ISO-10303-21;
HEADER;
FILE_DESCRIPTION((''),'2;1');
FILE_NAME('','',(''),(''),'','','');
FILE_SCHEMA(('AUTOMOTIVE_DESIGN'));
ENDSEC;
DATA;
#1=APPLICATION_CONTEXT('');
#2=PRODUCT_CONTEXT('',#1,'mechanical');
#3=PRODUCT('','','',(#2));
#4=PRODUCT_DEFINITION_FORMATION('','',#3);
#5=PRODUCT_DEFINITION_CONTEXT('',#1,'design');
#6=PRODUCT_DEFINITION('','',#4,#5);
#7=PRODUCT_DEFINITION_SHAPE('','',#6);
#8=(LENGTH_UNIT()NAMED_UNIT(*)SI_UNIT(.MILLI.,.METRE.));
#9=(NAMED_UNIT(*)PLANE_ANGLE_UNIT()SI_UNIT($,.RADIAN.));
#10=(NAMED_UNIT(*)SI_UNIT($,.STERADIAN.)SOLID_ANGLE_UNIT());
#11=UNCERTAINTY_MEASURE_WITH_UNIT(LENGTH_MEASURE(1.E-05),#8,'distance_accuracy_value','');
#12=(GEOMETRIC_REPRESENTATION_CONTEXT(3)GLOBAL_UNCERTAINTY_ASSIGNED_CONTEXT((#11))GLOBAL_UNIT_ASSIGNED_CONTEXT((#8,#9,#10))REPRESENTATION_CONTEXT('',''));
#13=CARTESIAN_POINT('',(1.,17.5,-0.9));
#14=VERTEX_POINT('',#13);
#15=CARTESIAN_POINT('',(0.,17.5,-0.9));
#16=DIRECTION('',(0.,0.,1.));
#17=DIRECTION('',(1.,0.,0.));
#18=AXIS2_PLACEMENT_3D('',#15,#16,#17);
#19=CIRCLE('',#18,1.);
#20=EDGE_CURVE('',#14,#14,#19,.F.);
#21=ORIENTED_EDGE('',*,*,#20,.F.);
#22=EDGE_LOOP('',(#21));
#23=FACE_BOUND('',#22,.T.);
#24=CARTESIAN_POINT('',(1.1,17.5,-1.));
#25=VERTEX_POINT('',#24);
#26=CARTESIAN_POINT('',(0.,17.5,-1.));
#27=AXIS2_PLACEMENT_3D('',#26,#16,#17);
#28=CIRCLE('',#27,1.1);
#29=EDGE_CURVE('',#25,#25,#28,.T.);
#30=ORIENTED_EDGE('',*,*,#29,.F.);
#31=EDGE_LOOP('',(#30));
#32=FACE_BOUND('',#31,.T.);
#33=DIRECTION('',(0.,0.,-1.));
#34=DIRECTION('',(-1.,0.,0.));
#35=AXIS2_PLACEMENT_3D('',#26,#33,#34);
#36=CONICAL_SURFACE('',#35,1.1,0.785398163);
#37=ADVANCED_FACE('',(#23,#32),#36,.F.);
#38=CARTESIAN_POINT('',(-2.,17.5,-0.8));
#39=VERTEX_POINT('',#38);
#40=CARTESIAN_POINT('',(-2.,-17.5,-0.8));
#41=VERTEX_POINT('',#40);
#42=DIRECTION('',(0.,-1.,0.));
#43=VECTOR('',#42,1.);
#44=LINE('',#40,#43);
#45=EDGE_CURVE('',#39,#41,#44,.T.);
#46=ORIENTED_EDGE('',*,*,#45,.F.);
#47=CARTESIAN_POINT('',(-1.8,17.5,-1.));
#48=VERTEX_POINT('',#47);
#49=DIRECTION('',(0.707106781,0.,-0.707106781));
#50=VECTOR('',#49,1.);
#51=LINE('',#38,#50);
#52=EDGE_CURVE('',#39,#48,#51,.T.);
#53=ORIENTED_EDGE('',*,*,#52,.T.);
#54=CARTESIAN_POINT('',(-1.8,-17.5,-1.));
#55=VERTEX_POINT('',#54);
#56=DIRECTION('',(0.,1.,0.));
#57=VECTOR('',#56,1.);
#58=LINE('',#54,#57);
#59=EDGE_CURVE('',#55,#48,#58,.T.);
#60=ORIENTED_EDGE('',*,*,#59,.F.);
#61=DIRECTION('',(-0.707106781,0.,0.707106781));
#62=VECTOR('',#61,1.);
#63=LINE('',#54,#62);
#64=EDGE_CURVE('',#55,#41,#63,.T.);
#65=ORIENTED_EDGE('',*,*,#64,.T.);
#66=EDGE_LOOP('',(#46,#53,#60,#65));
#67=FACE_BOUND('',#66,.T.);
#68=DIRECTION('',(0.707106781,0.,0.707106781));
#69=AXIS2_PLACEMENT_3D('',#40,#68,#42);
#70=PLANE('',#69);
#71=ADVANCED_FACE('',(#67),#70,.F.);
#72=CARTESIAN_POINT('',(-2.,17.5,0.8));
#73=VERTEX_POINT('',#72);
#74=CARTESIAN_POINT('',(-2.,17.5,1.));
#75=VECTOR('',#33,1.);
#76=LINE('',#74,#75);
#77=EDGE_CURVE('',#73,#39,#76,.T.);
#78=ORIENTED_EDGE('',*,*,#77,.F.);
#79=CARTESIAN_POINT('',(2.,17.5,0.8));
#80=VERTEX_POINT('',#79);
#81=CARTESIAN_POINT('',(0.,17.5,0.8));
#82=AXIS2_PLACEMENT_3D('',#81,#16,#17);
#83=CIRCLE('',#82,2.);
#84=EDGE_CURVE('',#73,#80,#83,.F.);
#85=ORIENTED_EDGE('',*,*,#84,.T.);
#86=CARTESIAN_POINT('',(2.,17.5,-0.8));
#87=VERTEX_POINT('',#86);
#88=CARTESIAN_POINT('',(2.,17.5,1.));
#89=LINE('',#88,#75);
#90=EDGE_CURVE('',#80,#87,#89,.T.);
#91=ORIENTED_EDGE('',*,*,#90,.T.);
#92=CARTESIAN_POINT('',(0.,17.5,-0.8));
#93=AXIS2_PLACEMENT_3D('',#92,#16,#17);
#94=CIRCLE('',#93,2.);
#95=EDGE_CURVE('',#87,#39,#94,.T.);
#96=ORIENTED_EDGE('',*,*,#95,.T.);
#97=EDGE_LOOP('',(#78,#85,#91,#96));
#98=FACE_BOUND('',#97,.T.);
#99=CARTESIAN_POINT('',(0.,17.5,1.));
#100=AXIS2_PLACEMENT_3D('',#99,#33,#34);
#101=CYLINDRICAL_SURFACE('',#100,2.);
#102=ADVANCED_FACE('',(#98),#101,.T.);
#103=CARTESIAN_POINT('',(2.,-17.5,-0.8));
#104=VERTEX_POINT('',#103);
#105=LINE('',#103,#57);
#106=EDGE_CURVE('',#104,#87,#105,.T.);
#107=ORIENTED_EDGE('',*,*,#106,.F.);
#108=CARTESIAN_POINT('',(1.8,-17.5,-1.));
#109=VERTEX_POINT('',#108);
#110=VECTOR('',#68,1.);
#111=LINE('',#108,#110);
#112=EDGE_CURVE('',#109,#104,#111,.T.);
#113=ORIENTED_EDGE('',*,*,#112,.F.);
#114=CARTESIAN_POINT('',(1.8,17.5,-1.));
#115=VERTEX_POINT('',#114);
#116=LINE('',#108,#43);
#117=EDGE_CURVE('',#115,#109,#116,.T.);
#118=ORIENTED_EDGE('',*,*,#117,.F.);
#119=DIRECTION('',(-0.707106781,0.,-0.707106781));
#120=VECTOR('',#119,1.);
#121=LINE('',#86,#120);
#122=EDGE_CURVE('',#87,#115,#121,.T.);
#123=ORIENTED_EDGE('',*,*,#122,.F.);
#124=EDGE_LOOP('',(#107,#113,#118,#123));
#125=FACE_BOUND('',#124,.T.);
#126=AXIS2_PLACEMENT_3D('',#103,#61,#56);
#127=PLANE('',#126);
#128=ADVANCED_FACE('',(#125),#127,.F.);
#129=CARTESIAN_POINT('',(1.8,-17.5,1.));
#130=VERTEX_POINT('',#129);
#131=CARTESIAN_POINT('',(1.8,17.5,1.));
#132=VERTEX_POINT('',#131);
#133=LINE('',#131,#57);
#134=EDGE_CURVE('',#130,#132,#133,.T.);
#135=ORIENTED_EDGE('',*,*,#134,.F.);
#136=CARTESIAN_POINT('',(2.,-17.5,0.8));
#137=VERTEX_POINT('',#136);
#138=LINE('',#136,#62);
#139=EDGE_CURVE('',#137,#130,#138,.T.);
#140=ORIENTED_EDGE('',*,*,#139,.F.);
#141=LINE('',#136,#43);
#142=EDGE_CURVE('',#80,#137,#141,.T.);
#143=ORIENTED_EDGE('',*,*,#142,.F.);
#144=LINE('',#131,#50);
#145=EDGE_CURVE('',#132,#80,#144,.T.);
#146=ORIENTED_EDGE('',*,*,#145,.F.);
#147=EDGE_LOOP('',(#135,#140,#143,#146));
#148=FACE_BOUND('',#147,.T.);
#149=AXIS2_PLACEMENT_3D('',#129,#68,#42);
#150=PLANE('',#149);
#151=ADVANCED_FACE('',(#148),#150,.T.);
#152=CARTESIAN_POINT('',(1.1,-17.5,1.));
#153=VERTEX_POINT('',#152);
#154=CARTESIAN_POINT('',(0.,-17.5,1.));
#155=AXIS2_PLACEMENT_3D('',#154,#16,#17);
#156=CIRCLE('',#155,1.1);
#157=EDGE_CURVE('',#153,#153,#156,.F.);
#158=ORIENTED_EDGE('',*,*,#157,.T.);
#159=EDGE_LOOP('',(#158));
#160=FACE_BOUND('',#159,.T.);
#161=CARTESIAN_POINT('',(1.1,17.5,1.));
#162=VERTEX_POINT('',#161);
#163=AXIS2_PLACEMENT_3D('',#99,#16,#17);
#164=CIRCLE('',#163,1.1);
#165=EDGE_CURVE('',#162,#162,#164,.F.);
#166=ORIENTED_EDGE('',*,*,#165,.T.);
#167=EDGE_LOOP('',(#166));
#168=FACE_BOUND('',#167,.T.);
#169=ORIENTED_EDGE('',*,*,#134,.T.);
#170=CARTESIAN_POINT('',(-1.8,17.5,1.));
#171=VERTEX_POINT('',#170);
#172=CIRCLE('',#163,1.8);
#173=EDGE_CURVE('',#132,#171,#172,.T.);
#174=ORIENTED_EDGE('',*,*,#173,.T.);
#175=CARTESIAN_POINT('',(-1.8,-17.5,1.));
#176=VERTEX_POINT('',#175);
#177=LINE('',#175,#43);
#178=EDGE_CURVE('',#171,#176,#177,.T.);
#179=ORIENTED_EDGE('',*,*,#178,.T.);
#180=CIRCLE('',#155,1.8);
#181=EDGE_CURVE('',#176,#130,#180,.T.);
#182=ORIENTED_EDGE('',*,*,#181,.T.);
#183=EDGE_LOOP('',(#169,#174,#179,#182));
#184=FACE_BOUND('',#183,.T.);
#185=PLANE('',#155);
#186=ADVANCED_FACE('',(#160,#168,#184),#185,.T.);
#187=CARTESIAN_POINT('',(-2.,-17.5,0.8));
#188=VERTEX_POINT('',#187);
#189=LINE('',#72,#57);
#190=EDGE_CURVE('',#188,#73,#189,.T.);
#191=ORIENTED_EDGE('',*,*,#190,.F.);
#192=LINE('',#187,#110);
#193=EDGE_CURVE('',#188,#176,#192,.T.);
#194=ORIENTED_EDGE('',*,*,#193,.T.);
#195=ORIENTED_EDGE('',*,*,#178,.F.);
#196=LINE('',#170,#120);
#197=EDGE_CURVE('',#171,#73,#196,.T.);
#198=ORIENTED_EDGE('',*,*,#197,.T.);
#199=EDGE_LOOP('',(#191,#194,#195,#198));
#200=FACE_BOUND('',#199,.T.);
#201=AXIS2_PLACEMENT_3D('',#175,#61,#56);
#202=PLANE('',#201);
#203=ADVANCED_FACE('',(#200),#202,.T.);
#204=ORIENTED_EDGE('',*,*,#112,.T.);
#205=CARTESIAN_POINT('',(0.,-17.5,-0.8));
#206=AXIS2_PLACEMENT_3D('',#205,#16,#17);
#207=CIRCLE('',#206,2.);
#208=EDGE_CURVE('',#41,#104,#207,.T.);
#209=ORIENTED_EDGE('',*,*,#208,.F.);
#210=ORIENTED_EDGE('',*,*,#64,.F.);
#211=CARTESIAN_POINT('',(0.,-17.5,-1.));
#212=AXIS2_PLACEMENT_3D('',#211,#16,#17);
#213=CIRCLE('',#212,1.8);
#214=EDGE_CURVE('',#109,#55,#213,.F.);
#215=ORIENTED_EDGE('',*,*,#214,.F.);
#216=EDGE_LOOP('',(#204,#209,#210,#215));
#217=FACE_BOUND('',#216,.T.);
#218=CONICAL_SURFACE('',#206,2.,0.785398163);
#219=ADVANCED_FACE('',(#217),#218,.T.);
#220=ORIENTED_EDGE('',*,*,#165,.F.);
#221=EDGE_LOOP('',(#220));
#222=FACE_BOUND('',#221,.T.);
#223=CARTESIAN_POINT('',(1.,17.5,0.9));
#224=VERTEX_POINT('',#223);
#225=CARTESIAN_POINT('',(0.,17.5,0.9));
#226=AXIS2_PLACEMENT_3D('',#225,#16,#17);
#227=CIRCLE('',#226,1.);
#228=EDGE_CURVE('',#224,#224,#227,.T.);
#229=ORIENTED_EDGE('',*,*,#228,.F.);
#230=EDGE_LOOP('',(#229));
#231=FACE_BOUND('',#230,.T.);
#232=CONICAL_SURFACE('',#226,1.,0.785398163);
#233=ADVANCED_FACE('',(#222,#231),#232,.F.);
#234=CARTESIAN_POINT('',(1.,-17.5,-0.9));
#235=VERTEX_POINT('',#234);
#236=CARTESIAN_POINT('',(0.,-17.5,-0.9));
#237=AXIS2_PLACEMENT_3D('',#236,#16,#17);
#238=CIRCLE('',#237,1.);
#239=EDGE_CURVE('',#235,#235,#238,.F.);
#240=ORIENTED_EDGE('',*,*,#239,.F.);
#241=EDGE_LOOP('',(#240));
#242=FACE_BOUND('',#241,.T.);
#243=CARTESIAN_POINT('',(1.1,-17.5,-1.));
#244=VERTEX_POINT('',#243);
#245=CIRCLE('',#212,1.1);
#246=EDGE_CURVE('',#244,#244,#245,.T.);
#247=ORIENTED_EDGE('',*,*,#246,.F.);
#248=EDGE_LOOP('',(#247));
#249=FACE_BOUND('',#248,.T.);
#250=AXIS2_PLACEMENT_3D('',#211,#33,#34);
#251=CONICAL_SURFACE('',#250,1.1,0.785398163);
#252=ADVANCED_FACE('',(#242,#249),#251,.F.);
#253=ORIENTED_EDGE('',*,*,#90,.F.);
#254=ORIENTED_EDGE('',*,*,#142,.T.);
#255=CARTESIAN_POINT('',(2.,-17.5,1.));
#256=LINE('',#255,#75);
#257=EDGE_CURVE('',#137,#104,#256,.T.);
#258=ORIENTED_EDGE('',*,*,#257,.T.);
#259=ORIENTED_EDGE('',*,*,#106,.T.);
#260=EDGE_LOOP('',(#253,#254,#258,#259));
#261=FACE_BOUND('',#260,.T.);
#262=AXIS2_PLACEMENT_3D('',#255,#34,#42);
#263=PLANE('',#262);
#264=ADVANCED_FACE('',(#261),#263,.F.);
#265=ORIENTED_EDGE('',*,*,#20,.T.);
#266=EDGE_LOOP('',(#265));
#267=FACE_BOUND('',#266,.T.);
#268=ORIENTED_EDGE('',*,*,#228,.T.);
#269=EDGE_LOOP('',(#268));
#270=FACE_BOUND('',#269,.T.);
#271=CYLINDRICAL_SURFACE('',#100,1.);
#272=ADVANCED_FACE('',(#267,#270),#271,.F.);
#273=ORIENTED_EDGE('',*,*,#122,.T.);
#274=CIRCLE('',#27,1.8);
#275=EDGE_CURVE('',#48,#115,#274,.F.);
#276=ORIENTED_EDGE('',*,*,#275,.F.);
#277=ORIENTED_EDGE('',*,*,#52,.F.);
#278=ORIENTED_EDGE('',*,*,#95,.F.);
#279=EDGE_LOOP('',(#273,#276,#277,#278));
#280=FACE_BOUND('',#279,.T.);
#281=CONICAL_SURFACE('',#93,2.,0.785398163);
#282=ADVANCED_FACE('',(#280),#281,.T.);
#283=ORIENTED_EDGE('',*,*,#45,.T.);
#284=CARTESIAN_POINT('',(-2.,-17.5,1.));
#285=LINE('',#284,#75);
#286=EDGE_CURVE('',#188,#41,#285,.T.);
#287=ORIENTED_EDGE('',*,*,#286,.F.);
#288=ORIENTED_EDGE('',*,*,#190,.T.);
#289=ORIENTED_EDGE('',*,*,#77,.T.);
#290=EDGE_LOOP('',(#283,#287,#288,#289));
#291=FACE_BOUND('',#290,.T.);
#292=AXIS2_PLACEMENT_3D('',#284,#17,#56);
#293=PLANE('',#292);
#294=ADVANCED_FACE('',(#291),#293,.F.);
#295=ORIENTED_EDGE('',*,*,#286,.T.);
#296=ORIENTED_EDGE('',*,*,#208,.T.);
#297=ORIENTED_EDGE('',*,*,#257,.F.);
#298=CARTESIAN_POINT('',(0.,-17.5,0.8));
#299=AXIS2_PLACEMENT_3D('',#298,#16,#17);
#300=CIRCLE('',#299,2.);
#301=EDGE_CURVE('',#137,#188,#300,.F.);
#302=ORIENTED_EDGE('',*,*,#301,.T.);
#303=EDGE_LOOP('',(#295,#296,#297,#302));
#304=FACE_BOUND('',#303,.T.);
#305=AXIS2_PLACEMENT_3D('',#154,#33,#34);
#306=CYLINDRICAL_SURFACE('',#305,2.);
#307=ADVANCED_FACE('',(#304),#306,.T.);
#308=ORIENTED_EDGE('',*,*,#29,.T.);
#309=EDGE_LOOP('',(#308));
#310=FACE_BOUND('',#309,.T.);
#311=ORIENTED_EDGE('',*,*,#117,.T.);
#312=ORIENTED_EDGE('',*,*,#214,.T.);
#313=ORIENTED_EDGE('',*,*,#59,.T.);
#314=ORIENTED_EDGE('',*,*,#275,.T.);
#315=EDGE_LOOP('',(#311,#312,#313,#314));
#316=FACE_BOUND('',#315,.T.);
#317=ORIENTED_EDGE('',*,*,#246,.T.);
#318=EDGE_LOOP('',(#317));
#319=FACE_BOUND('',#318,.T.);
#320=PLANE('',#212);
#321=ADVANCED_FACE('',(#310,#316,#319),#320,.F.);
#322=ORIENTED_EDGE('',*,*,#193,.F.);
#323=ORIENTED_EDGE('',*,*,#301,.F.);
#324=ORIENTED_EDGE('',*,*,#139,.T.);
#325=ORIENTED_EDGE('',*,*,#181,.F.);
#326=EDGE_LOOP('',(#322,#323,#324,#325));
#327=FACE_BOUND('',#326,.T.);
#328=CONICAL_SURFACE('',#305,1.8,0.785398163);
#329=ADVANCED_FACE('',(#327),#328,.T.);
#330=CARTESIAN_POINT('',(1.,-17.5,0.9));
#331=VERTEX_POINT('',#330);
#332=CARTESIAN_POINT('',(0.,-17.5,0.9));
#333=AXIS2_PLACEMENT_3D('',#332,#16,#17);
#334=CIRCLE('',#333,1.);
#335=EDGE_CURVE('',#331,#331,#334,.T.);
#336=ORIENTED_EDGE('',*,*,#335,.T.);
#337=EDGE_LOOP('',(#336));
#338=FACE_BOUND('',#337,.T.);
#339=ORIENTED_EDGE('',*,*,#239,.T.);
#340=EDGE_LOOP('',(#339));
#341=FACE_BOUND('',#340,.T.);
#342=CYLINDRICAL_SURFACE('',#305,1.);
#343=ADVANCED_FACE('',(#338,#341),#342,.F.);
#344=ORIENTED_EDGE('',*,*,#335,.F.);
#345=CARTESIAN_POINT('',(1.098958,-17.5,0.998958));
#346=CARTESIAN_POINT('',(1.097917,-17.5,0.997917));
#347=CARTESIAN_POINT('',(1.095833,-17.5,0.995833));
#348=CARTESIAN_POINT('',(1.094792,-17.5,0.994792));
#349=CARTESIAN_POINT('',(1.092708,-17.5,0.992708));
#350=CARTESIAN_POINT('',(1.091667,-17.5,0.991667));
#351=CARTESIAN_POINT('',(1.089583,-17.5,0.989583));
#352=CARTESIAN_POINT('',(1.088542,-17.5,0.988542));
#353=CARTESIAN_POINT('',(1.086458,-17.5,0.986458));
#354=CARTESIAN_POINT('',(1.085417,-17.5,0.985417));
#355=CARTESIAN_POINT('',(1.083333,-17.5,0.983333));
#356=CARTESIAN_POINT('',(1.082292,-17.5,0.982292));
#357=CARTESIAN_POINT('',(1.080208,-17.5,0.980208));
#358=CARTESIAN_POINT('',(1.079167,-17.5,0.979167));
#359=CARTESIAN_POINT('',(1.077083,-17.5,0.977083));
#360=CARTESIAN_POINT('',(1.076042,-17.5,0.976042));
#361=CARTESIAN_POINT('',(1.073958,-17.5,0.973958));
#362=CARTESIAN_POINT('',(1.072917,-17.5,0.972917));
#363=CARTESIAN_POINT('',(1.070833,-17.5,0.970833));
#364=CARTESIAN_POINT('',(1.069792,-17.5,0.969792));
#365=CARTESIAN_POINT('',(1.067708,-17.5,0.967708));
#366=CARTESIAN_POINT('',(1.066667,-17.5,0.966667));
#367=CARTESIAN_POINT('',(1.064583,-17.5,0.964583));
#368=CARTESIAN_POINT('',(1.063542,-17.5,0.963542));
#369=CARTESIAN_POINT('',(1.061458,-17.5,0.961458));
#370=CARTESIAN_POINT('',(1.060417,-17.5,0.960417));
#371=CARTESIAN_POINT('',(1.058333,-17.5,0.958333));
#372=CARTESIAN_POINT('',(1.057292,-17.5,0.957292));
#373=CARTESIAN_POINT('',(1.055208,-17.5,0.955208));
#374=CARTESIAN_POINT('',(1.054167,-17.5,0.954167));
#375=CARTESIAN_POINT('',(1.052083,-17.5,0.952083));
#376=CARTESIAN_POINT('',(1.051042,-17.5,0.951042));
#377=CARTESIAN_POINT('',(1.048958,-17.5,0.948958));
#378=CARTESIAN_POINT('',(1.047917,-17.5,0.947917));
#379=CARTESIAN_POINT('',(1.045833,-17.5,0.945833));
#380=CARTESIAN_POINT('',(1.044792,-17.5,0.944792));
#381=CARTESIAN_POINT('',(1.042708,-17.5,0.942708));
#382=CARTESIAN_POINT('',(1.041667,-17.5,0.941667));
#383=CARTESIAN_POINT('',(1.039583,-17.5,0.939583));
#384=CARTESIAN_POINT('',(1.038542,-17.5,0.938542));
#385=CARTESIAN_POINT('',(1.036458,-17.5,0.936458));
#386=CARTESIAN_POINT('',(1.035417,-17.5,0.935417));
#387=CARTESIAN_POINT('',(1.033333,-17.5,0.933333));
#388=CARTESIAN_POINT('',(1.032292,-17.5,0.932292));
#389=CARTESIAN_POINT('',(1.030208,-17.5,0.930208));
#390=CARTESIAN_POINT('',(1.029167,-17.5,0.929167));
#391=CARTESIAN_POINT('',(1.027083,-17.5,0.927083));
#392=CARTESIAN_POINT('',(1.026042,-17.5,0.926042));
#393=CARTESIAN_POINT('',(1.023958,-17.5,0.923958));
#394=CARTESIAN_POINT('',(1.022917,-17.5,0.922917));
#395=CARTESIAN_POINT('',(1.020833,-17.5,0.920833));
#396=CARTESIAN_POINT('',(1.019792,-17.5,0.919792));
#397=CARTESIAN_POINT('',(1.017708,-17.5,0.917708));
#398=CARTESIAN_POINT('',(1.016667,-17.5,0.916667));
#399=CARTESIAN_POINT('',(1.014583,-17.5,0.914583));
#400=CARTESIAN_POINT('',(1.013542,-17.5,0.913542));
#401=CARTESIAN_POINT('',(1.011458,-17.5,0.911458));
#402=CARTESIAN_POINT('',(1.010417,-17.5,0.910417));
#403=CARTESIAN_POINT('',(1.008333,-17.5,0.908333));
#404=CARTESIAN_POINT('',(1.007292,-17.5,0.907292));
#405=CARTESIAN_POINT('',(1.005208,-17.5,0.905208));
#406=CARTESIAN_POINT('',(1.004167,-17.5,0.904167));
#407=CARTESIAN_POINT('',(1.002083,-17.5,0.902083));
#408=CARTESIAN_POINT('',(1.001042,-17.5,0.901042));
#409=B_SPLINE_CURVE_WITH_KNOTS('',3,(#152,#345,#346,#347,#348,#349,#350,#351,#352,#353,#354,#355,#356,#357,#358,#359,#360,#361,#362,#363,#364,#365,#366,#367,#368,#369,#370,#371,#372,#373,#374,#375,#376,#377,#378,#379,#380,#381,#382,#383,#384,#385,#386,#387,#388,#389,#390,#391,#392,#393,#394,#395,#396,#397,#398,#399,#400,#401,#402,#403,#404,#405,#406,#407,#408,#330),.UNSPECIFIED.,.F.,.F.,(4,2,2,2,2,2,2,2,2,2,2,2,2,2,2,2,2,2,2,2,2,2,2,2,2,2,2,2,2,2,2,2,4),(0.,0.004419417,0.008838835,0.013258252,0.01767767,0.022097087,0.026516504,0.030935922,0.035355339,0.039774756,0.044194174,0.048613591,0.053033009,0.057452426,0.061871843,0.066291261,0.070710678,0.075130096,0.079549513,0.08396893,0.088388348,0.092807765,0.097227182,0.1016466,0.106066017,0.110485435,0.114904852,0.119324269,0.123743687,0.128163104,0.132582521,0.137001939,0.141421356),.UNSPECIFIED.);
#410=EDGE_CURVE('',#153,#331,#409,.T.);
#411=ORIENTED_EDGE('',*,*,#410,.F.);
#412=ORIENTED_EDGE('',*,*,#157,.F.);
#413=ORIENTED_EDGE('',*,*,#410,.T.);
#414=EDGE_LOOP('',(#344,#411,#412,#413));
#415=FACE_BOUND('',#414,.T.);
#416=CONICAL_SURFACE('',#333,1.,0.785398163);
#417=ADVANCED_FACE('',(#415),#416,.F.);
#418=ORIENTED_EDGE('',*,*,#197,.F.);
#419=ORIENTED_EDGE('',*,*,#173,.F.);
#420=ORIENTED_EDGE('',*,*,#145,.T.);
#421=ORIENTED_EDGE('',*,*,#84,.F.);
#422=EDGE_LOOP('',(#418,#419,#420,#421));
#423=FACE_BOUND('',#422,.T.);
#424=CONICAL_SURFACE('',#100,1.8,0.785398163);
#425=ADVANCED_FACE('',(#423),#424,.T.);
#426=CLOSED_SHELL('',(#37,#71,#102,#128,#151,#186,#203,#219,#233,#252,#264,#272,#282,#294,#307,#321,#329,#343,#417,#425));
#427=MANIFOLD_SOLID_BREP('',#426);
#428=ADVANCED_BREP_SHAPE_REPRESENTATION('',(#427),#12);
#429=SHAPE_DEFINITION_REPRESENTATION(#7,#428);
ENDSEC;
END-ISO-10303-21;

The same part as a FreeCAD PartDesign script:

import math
import FreeCAD as App
import Part
import Sketcher

V = App.Vector
Q = App.Units.Quantity


def edges_at(feature, points):
    """Names of the edges that pass closest to the given points."""
    edges = feature.Shape.Edges
    near = lambda p: min(range(len(edges)), key=lambda i: edges[i].distToShape(Part.Vertex(*p))[0])
    return sorted({f"Edge{near(p) + 1}" for p in points})

doc = App.newDocument("Part")
body = doc.addObject("PartDesign::Body", "Body")

# Sketch on XY plane
sketch1 = doc.addObject("Sketcher::SketchObject", "Sketch")
body.addObject(sketch1)
sketch1.AttachmentSupport = (doc.XY_Plane, [""])
sketch1.MapMode = "FlatFace"
sketch1.addGeometry(Part.LineSegment(V(-2, 17.5, 0), V(-2, -17.5, 0)), False)
sketch1.addGeometry(Part.ArcOfCircle(Part.Circle(V(0, -17.5, 0), V(0, 0, 1), 2), math.radians(180), math.radians(360)), False)
sketch1.addGeometry(Part.LineSegment(V(2, -17.5, 0), V(2, 17.5, 0)), False)
sketch1.addGeometry(Part.ArcOfCircle(Part.Circle(V(0, 17.5, 0), V(0, 0, 1), 2), math.radians(0), math.radians(180)), False)
sketch1.addGeometry(Part.Circle(V(0, -17.5, 0), V(0, 0, 1), 1), False)
sketch1.addGeometry(Part.Circle(V(0, 17.5, 0), V(0, 0, 1), 1), False)
sketch1.addConstraint(Sketcher.Constraint("Tangent", 0, 2, 1, 1))
sketch1.addConstraint(Sketcher.Constraint("Tangent", 1, 2, 2, 1))
sketch1.addConstraint(Sketcher.Constraint("Tangent", 2, 2, 3, 1))
sketch1.addConstraint(Sketcher.Constraint("Tangent", 3, 2, 0, 1))
sketch1.addConstraint(Sketcher.Constraint("Vertical", 0))
sketch1.addConstraint(Sketcher.Constraint("Vertical", 2))
sketch1.addConstraint(Sketcher.Constraint("Coincident", 4, 3, 1, 3))
sketch1.addConstraint(Sketcher.Constraint("Coincident", 5, 3, 3, 3))
sketch1.addConstraint(Sketcher.Constraint("Equal", 4, 5))
sketch1.addConstraint(Sketcher.Constraint("Symmetric", 1, 3, 3, 3, -1, 1))
sketch1.addConstraint(Sketcher.Constraint("Diameter", 4, Q("2 mm")))
sketch1.addConstraint(Sketcher.Constraint("Radius", 1, Q("2 mm")))
sketch1.addConstraint(Sketcher.Constraint("DistanceY", 0, 2, 0, 1, Q("35 mm")))
pad1 = doc.addObject("PartDesign::Pad", "Pad")
body.addObject(pad1)
pad1.Profile = sketch1
pad1.Length = 2
pad1.Midplane = True
doc.recompute()

chamfer = doc.addObject("PartDesign::Chamfer", "Chamfer")
body.addObject(chamfer)
chamfer.Base = (pad1, edges_at(pad1, [
    (0, 19.5, 1),
    (-2, 0, 1),
    (0, -19.5, 1),
    (-2, 0, -1),
    (0, 19.5, -1),
    (2, 0, -1),
    (0, -19.5, -1),
    (2, 0, 1),
]))
chamfer.Size = 0.2
doc.recompute()

chamfer2 = doc.addObject("PartDesign::Chamfer", "Chamfer001")
body.addObject(chamfer2)
chamfer2.Base = (chamfer, edges_at(chamfer, [
    (-1, 17.5, -1),
    (-1, 17.5, 1),
    (-1, -17.5, -1),
    (-1, -17.5, 1),
]))
chamfer2.Size = 0.1

doc.recompute()
